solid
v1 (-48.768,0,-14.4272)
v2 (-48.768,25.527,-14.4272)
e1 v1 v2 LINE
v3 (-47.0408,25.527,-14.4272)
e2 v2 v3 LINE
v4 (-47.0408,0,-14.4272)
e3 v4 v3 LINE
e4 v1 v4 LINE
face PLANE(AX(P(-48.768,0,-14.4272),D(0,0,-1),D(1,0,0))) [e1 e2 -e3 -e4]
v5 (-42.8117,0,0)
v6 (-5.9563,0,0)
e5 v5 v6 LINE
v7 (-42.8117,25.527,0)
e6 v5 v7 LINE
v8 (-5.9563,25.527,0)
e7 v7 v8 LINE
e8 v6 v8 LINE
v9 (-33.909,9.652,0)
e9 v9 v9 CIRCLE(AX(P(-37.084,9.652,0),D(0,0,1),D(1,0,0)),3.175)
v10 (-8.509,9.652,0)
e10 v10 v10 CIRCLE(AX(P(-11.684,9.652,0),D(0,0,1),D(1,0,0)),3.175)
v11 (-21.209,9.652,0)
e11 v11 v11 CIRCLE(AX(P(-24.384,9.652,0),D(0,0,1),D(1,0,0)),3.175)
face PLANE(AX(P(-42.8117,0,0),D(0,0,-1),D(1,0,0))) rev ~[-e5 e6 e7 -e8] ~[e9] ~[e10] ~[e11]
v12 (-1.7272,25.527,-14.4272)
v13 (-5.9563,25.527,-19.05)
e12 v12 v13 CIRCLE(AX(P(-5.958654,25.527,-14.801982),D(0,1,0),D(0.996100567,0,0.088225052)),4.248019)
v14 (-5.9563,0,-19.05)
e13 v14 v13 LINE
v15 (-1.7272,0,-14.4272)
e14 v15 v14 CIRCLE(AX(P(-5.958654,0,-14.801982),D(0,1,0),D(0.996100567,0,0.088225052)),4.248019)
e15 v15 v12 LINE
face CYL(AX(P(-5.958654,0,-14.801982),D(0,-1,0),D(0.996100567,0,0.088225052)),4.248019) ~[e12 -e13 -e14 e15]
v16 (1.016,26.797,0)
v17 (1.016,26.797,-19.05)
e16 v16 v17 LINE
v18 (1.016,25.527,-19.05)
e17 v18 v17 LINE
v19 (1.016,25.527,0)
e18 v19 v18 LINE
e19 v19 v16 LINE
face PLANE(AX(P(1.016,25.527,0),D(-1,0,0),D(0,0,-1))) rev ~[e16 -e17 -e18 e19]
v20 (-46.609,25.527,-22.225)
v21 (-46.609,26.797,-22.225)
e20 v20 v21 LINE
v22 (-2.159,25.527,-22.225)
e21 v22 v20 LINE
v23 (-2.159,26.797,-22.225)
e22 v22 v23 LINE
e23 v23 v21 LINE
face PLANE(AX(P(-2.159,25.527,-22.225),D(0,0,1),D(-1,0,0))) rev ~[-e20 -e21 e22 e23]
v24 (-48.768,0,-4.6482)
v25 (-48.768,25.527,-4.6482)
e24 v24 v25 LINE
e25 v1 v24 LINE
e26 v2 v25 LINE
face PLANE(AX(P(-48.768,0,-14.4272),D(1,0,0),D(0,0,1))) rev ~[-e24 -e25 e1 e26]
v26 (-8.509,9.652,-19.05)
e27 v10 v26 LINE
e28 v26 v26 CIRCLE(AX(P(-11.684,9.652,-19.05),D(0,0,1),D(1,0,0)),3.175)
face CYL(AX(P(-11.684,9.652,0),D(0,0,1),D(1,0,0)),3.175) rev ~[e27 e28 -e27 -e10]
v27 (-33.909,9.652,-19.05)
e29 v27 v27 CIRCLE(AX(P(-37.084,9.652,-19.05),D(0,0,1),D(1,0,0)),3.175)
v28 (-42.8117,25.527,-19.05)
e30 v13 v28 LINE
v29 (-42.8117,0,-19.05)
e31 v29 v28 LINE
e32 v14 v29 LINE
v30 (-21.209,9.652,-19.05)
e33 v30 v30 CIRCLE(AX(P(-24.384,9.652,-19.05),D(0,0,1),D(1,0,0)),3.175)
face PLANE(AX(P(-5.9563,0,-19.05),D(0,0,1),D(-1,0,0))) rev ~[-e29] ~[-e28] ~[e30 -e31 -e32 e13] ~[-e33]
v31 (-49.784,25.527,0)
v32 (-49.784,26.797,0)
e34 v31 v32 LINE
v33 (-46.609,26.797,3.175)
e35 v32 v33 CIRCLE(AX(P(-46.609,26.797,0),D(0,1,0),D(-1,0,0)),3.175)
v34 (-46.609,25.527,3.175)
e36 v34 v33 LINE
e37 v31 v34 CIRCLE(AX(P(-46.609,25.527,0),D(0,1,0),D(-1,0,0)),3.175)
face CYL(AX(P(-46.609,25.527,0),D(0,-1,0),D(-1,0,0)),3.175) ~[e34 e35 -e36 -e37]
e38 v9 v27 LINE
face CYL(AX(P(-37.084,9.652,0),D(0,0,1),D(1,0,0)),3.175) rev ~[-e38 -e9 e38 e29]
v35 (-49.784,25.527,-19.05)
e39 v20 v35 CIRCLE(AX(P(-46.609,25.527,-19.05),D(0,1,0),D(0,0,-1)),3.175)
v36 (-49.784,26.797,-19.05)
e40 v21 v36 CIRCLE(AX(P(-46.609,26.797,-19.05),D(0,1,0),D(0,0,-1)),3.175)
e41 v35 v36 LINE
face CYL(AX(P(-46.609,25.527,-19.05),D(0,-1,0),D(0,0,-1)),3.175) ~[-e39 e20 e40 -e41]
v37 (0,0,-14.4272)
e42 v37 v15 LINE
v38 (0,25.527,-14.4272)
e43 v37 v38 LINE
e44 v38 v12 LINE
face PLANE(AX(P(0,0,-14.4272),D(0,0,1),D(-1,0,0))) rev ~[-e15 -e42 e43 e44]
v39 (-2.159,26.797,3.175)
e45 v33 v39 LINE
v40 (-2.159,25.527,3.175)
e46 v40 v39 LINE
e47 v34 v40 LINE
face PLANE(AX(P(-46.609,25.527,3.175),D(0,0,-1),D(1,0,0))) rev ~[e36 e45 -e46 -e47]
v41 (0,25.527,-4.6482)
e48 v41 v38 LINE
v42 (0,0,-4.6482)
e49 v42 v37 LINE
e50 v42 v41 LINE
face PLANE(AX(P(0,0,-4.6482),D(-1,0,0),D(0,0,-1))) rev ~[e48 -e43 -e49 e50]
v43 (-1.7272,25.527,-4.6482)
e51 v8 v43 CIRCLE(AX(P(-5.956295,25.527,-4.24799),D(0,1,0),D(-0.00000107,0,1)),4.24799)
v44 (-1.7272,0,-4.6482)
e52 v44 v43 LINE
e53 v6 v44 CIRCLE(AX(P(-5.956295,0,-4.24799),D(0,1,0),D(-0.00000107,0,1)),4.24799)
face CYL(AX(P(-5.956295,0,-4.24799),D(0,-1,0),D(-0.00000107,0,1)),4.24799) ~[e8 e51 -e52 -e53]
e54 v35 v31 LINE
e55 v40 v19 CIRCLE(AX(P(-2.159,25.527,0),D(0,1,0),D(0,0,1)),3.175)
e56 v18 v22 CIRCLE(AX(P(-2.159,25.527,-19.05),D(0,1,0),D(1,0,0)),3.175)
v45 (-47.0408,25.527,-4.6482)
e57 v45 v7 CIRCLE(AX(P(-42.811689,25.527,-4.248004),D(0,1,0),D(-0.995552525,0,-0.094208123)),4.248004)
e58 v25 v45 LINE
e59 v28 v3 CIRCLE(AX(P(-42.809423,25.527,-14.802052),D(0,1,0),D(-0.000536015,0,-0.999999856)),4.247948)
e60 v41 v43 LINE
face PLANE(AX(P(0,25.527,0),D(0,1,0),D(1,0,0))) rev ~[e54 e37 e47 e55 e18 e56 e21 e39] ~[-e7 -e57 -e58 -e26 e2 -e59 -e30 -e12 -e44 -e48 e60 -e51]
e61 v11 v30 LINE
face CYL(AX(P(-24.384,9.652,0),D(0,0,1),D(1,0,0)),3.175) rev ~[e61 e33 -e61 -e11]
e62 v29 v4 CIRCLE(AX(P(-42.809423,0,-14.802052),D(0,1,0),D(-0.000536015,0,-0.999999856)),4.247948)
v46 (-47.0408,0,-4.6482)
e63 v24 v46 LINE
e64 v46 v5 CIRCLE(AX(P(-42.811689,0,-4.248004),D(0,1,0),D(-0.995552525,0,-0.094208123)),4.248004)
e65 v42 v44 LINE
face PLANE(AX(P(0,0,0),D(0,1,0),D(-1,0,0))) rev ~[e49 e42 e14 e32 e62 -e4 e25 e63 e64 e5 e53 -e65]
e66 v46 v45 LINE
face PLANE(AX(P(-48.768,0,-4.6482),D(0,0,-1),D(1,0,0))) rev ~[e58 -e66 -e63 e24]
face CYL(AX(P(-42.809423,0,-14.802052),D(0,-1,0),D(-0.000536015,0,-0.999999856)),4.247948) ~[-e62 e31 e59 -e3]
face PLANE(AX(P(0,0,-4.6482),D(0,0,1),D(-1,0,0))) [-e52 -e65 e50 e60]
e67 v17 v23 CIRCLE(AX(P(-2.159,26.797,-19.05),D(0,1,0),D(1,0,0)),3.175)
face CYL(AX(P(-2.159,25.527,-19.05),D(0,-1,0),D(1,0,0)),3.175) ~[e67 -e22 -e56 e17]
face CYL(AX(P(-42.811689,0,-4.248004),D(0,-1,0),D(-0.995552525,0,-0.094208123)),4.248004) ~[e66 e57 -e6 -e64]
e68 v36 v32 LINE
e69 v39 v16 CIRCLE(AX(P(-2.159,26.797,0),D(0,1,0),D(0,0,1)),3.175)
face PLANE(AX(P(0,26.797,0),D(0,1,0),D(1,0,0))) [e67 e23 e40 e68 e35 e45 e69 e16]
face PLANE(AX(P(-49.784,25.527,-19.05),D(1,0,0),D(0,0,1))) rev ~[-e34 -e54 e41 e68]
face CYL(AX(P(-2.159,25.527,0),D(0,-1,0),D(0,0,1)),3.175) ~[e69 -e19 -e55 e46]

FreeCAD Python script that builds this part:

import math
import FreeCAD as App
import Part
import Sketcher
from FreeCAD import Vector
Q = App.Units.Quantity

doc = App.newDocument("Part")
body = doc.addObject("PartDesign::Body", "Body")

# Sketch on XZ plane
sketch1 = doc.addObject("Sketcher::SketchObject", "Sketch")
body.addObject(sketch1)
sketch1.AttachmentSupport = (doc.XZ_Plane, [""])
sketch1.MapMode = "FlatFace"
sketch1.addGeometry([
    Part.LineSegment(Vector(-1.7, -4.6, 0), Vector(0, -4.6, 0)),  # 0
    Part.LineSegment(Vector(0, -4.6, 0), Vector(0, -14.4, 0)),  # 1
    Part.LineSegment(Vector(0, -14.4, 0), Vector(-1.7, -14.4, 0)),  # 2
    Part.ArcOfCircle(Part.Circle(Vector(-6, -14.8, 0), Vector(0, 0, 1), 4.2), math.radians(-90), math.radians(5)),  # 3
    Part.LineSegment(Vector(-6, -19.1, 0), Vector(-42.8, -19.1, 0)),  # 4
    Part.ArcOfCircle(Part.Circle(Vector(-42.8, -14.8, 0), Vector(0, 0, 1), 4.2), math.radians(175), math.radians(270)),  # 5
    Part.LineSegment(Vector(-47, -14.4, 0), Vector(-48.8, -14.4, 0)),  # 6
    Part.LineSegment(Vector(-48.8, -14.4, 0), Vector(-48.8, -4.6, 0)),  # 7
    Part.LineSegment(Vector(-48.8, -4.6, 0), Vector(-47, -4.6, 0)),  # 8
    Part.ArcOfCircle(Part.Circle(Vector(-42.8, -4.2, 0), Vector(0, 0, 1), 4.2), math.radians(90), math.radians(185)),  # 9
    Part.LineSegment(Vector(-42.8, 0, 0), Vector(-6, 0, 0)),  # 10
    Part.ArcOfCircle(Part.Circle(Vector(-6, -4.2, 0), Vector(0, 0, 1), 4.2), math.radians(-5), math.radians(90)),  # 11
], False)
sketch1.addConstraint([
    Sketcher.Constraint("Coincident", 0, 2, 1, 1),
    Sketcher.Constraint("Coincident", 1, 2, 2, 1),
    Sketcher.Constraint("Coincident", 2, 2, 3, 2),
    Sketcher.Constraint("Coincident", 3, 1, 4, 1),
    Sketcher.Constraint("Coincident", 4, 2, 5, 2),
    Sketcher.Constraint("Coincident", 5, 1, 6, 1),
    Sketcher.Constraint("Coincident", 6, 2, 7, 1),
    Sketcher.Constraint("Coincident", 7, 2, 8, 1),
    Sketcher.Constraint("Coincident", 8, 2, 9, 2),
    Sketcher.Constraint("Tangent", 9, 1, 10, 1),
    Sketcher.Constraint("Tangent", 10, 2, 11, 2),
    Sketcher.Constraint("Coincident", 11, 1, 0, 1),
    Sketcher.Constraint("Horizontal", 0),
    Sketcher.Constraint("Vertical", 1),
    Sketcher.Constraint("Horizontal", 2),
    Sketcher.Constraint("Horizontal", 4),
    Sketcher.Constraint("Horizontal", 6),
    Sketcher.Constraint("Vertical", 7),
    Sketcher.Constraint("Horizontal", 8),
    Sketcher.Constraint("Horizontal", 10),
    Sketcher.Constraint("Equal", 3, 5),
    Sketcher.Constraint("Equal", 5, 9),
    Sketcher.Constraint("Equal", 9, 11),
    Sketcher.Constraint("PointOnObject", 0, 2, -2),
    Sketcher.Constraint("PointOnObject", 9, 1, -1),
    Sketcher.Constraint("Horizontal", 2, 2, 5, 1),
    Sketcher.Constraint("Horizontal", 0, 2, 7, 2),
    Sketcher.Constraint("Vertical", 11, 3, 3, 1),
    Sketcher.Constraint("Vertical", 9, 3, 4, 2),
    Sketcher.Constraint("Vertical", 5, 1, 8, 2),
    Sketcher.Constraint("Vertical", 2, 2, 11, 1),
    Sketcher.Constraint("Equal", 2, 6),
    Sketcher.Constraint("DistanceX", 0, 1, 0, 2, Q("0.068 in")),
    Sketcher.Constraint("DistanceX", 4, 2, 4, 1, Q("1.451 in")),
    Sketcher.Constraint("DistanceY", 1, 2, 1, 1, Q("0.385 in")),
    Sketcher.Constraint("DistanceY", 3, 1, -1, 1, Q("0.75 in")),
    Sketcher.Constraint("DistanceX", 6, 2, -1, 1, Q("1.92 in")),
    Sketcher.Constraint("DistanceY", 0, 2, -1, 1, Q("0.183 in")),
])
pad1 = doc.addObject("PartDesign::Pad", "Pad")
body.addObject(pad1)
pad1.Profile = sketch1
pad1.Length = Q("1.005 in")
pad1.Reversed = True

# Sketch on XZ plane
sketch2 = doc.addObject("Sketcher::SketchObject", "Sketch001")
body.addObject(sketch2)
sketch2.AttachmentSupport = (doc.XZ_Plane, [""])
sketch2.MapMode = "FlatFace"
sketch2.AttachmentOffset = App.Placement(Vector(0, 0, -1.005 * 25.4), App.Rotation())
sketch2.addGeometry([
    Part.ArcOfCircle(Part.Circle(Vector(-46.6, 0, 0), Vector(0, 0, 1), 3.2), math.radians(90), math.radians(180)),  # 0
    Part.LineSegment(Vector(-46.6, 3.2, 0), Vector(-2.2, 3.2, 0)),  # 1
    Part.ArcOfCircle(Part.Circle(Vector(-2.2, 0, 0), Vector(0, 0, 1), 3.2), math.radians(0), math.radians(90)),  # 2
    Part.LineSegment(Vector(1, 0, 0), Vector(1, -19.1, 0)),  # 3
    Part.ArcOfCircle(Part.Circle(Vector(-2.2, -19.1, 0), Vector(0, 0, 1), 3.2), math.radians(-90), math.radians(0)),  # 4
    Part.LineSegment(Vector(-2.2, -22.2, 0), Vector(-46.6, -22.2, 0)),  # 5
    Part.ArcOfCircle(Part.Circle(Vector(-46.6, -19.1, 0), Vector(0, 0, 1), 3.2), math.radians(180), math.radians(270)),  # 6
    Part.LineSegment(Vector(-49.8, -19.1, 0), Vector(-49.8, 0, 0)),  # 7
], False)
sketch2.addConstraint([
    Sketcher.Constraint("Tangent", 0, 1, 1, 1),
    Sketcher.Constraint("Tangent", 1, 2, 2, 2),
    Sketcher.Constraint("Tangent", 2, 1, 3, 1),
    Sketcher.Constraint("Tangent", 3, 2, 4, 2),
    Sketcher.Constraint("Tangent", 4, 1, 5, 1),
    Sketcher.Constraint("Tangent", 5, 2, 6, 2),
    Sketcher.Constraint("Tangent", 6, 1, 7, 1),
    Sketcher.Constraint("Tangent", 7, 2, 0, 2),
    Sketcher.Constraint("Horizontal", 1),
    Sketcher.Constraint("Vertical", 3),
    Sketcher.Constraint("Horizontal", 5),
    Sketcher.Constraint("Vertical", 7),
    Sketcher.Constraint("Equal", 0, 2),
    Sketcher.Constraint("Equal", 2, 4),
    Sketcher.Constraint("Equal", 4, 6),
    Sketcher.Constraint("PointOnObject", 0, 3, -1),
    Sketcher.Constraint("Radius", 0, Q("0.125 in")),
    Sketcher.Constraint("DistanceY", 4, 1, 1, 2, Q("1 in")),
    Sketcher.Constraint("DistanceX", -1, 1, 2, 1, Q("0.04 in")),
    Sketcher.Constraint("DistanceX", 1, 1, 1, 2, Q("1.75 in")),
])
pad2 = doc.addObject("PartDesign::Pad", "Pad001")
body.addObject(pad2)
pad2.Profile = sketch2
pad2.Length = Q("0.05 in")
pad2.Reversed = True

# Sketch on XY plane
sketch3 = doc.addObject("Sketcher::SketchObject", "Sketch002")
body.addObject(sketch3)
sketch3.AttachmentSupport = (doc.XY_Plane, [""])
sketch3.MapMode = "FlatFace"
sketch3.addGeometry([
    Part.Circle(Vector(-37.1, 9.7, 0), Vector(0, 0, 1), 3.2),
    Part.Circle(Vector(-24.4, 9.7, 0), Vector(0, 0, 1), 3.2),
    Part.Circle(Vector(-11.7, 9.7, 0), Vector(0, 0, 1), 3.2),
], False)
sketch3.addConstraint([
    Sketcher.Constraint("Equal", 0, 1),
    Sketcher.Constraint("Equal", 1, 2),
    Sketcher.Constraint("Horizontal", 0, 3, 1, 3),
    Sketcher.Constraint("Horizontal", 1, 3, 2, 3),
    Sketcher.Constraint("Diameter", 0, Q("0.25 in")),
    Sketcher.Constraint("DistanceX", 0, 3, 1, 3, Q("0.5 in")),
    Sketcher.Constraint("DistanceX", 1, 3, 2, 3, Q("0.5 in")),
    Sketcher.Constraint("DistanceX", 0, 3, -1, 1, Q("1.46 in")),
    Sketcher.Constraint("DistanceY", -1, 1, 0, 3, Q("0.38 in")),
])
pocket1 = doc.addObject("PartDesign::Pocket", "Pocket")
body.addObject(pocket1)
pocket1.Profile = sketch3
pocket1.Type = "ThroughAll"

doc.recompute()
